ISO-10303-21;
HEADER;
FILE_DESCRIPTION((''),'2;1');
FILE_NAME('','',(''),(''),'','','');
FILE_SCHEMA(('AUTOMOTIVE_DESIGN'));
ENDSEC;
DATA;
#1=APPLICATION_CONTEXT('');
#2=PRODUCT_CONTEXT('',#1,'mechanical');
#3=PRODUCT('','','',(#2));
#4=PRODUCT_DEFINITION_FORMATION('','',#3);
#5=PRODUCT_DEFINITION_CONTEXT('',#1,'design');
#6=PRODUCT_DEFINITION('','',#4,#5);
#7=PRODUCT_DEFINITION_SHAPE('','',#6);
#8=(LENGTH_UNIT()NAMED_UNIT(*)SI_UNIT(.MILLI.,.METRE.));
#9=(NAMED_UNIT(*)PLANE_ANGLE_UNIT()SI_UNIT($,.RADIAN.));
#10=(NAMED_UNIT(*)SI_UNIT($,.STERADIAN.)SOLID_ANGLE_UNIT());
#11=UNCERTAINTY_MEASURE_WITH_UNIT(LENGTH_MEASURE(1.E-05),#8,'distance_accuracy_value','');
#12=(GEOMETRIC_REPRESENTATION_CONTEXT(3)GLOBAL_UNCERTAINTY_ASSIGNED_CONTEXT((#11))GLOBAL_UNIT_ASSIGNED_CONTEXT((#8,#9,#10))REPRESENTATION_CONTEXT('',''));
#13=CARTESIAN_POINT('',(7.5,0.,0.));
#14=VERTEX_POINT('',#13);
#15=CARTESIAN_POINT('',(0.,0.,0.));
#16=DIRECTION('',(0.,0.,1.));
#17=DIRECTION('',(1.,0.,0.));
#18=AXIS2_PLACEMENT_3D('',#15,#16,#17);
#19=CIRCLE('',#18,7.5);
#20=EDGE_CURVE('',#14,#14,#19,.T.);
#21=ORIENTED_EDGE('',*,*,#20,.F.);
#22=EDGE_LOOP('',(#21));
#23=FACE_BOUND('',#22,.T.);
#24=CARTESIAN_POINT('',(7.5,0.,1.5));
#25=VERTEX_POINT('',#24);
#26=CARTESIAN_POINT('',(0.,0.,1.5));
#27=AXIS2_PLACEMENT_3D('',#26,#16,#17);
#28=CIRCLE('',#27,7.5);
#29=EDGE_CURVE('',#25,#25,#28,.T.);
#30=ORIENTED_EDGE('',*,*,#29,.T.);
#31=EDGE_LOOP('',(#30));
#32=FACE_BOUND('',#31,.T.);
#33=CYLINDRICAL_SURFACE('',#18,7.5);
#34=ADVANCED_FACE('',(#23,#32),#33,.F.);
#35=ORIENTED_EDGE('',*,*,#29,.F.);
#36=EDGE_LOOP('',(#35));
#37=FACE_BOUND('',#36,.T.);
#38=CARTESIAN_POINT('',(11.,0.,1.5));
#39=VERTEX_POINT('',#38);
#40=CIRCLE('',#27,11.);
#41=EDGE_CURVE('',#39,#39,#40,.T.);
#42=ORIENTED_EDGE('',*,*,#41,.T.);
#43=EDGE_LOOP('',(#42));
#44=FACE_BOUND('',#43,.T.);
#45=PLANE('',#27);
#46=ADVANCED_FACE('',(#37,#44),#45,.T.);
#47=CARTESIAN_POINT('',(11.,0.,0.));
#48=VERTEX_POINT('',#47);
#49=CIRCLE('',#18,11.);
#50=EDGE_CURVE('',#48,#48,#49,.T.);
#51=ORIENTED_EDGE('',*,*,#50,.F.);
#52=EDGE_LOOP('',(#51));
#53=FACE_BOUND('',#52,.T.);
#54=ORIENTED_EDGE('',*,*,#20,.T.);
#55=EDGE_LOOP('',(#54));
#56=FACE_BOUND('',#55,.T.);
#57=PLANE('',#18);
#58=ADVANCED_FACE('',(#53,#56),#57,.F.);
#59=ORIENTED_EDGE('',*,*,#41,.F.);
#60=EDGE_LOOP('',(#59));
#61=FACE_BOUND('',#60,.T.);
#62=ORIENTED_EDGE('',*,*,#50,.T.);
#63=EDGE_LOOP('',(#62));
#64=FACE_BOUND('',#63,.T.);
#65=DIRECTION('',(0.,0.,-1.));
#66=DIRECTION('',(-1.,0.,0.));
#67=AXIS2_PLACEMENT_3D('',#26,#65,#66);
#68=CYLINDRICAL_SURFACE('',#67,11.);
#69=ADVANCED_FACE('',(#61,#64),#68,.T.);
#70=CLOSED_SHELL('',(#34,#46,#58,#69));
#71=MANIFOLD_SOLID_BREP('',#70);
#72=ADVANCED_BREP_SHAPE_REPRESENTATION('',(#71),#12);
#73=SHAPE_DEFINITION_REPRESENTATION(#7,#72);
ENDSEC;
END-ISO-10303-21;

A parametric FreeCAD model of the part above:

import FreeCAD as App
import Part
import Sketcher

doc = App.newDocument("Part")
body = doc.addObject("PartDesign::Body", "Body")

sketch1 = body.newObject("Sketcher::SketchObject", "Sketch")
sketch1.AttachmentSupport = (doc.getObject("XY_Plane"), [""])
sketch1.MapMode = "FlatFace"
sketch1.addGeometry(Part.Circle(App.Vector(0, 0, 0), App.Vector(0, 0, 1), 11), False)
sketch1.addConstraint(Sketcher.Constraint("Coincident", 0, 3, -1, 1))
sketch1.addConstraint(Sketcher.Constraint("Diameter", 0, 22.0))
pad1 = body.newObject("PartDesign::Pad", "Pad")
pad1.Profile = sketch1
pad1.Length = 1.5

sketch2 = body.newObject("Sketcher::SketchObject", "Sketch001")
sketch2.AttachmentSupport = (doc.getObject("XY_Plane"), [""])
sketch2.MapMode = "FlatFace"
sketch2.AttachmentOffset = App.Placement(App.Vector(0, 0, 1.5), App.Rotation())
sketch2.addGeometry(Part.Circle(App.Vector(0, 0, 0), App.Vector(0, 0, 1), 7.5), False)
sketch2.addConstraint(Sketcher.Constraint("Coincident", 0, 3, -1, 1))
sketch2.addConstraint(Sketcher.Constraint("Diameter", 0, 15.0))
pocket1 = body.newObject("PartDesign::Pocket", "Pocket")
pocket1.Profile = sketch2
pocket1.Length = 1.5

doc.recompute()
